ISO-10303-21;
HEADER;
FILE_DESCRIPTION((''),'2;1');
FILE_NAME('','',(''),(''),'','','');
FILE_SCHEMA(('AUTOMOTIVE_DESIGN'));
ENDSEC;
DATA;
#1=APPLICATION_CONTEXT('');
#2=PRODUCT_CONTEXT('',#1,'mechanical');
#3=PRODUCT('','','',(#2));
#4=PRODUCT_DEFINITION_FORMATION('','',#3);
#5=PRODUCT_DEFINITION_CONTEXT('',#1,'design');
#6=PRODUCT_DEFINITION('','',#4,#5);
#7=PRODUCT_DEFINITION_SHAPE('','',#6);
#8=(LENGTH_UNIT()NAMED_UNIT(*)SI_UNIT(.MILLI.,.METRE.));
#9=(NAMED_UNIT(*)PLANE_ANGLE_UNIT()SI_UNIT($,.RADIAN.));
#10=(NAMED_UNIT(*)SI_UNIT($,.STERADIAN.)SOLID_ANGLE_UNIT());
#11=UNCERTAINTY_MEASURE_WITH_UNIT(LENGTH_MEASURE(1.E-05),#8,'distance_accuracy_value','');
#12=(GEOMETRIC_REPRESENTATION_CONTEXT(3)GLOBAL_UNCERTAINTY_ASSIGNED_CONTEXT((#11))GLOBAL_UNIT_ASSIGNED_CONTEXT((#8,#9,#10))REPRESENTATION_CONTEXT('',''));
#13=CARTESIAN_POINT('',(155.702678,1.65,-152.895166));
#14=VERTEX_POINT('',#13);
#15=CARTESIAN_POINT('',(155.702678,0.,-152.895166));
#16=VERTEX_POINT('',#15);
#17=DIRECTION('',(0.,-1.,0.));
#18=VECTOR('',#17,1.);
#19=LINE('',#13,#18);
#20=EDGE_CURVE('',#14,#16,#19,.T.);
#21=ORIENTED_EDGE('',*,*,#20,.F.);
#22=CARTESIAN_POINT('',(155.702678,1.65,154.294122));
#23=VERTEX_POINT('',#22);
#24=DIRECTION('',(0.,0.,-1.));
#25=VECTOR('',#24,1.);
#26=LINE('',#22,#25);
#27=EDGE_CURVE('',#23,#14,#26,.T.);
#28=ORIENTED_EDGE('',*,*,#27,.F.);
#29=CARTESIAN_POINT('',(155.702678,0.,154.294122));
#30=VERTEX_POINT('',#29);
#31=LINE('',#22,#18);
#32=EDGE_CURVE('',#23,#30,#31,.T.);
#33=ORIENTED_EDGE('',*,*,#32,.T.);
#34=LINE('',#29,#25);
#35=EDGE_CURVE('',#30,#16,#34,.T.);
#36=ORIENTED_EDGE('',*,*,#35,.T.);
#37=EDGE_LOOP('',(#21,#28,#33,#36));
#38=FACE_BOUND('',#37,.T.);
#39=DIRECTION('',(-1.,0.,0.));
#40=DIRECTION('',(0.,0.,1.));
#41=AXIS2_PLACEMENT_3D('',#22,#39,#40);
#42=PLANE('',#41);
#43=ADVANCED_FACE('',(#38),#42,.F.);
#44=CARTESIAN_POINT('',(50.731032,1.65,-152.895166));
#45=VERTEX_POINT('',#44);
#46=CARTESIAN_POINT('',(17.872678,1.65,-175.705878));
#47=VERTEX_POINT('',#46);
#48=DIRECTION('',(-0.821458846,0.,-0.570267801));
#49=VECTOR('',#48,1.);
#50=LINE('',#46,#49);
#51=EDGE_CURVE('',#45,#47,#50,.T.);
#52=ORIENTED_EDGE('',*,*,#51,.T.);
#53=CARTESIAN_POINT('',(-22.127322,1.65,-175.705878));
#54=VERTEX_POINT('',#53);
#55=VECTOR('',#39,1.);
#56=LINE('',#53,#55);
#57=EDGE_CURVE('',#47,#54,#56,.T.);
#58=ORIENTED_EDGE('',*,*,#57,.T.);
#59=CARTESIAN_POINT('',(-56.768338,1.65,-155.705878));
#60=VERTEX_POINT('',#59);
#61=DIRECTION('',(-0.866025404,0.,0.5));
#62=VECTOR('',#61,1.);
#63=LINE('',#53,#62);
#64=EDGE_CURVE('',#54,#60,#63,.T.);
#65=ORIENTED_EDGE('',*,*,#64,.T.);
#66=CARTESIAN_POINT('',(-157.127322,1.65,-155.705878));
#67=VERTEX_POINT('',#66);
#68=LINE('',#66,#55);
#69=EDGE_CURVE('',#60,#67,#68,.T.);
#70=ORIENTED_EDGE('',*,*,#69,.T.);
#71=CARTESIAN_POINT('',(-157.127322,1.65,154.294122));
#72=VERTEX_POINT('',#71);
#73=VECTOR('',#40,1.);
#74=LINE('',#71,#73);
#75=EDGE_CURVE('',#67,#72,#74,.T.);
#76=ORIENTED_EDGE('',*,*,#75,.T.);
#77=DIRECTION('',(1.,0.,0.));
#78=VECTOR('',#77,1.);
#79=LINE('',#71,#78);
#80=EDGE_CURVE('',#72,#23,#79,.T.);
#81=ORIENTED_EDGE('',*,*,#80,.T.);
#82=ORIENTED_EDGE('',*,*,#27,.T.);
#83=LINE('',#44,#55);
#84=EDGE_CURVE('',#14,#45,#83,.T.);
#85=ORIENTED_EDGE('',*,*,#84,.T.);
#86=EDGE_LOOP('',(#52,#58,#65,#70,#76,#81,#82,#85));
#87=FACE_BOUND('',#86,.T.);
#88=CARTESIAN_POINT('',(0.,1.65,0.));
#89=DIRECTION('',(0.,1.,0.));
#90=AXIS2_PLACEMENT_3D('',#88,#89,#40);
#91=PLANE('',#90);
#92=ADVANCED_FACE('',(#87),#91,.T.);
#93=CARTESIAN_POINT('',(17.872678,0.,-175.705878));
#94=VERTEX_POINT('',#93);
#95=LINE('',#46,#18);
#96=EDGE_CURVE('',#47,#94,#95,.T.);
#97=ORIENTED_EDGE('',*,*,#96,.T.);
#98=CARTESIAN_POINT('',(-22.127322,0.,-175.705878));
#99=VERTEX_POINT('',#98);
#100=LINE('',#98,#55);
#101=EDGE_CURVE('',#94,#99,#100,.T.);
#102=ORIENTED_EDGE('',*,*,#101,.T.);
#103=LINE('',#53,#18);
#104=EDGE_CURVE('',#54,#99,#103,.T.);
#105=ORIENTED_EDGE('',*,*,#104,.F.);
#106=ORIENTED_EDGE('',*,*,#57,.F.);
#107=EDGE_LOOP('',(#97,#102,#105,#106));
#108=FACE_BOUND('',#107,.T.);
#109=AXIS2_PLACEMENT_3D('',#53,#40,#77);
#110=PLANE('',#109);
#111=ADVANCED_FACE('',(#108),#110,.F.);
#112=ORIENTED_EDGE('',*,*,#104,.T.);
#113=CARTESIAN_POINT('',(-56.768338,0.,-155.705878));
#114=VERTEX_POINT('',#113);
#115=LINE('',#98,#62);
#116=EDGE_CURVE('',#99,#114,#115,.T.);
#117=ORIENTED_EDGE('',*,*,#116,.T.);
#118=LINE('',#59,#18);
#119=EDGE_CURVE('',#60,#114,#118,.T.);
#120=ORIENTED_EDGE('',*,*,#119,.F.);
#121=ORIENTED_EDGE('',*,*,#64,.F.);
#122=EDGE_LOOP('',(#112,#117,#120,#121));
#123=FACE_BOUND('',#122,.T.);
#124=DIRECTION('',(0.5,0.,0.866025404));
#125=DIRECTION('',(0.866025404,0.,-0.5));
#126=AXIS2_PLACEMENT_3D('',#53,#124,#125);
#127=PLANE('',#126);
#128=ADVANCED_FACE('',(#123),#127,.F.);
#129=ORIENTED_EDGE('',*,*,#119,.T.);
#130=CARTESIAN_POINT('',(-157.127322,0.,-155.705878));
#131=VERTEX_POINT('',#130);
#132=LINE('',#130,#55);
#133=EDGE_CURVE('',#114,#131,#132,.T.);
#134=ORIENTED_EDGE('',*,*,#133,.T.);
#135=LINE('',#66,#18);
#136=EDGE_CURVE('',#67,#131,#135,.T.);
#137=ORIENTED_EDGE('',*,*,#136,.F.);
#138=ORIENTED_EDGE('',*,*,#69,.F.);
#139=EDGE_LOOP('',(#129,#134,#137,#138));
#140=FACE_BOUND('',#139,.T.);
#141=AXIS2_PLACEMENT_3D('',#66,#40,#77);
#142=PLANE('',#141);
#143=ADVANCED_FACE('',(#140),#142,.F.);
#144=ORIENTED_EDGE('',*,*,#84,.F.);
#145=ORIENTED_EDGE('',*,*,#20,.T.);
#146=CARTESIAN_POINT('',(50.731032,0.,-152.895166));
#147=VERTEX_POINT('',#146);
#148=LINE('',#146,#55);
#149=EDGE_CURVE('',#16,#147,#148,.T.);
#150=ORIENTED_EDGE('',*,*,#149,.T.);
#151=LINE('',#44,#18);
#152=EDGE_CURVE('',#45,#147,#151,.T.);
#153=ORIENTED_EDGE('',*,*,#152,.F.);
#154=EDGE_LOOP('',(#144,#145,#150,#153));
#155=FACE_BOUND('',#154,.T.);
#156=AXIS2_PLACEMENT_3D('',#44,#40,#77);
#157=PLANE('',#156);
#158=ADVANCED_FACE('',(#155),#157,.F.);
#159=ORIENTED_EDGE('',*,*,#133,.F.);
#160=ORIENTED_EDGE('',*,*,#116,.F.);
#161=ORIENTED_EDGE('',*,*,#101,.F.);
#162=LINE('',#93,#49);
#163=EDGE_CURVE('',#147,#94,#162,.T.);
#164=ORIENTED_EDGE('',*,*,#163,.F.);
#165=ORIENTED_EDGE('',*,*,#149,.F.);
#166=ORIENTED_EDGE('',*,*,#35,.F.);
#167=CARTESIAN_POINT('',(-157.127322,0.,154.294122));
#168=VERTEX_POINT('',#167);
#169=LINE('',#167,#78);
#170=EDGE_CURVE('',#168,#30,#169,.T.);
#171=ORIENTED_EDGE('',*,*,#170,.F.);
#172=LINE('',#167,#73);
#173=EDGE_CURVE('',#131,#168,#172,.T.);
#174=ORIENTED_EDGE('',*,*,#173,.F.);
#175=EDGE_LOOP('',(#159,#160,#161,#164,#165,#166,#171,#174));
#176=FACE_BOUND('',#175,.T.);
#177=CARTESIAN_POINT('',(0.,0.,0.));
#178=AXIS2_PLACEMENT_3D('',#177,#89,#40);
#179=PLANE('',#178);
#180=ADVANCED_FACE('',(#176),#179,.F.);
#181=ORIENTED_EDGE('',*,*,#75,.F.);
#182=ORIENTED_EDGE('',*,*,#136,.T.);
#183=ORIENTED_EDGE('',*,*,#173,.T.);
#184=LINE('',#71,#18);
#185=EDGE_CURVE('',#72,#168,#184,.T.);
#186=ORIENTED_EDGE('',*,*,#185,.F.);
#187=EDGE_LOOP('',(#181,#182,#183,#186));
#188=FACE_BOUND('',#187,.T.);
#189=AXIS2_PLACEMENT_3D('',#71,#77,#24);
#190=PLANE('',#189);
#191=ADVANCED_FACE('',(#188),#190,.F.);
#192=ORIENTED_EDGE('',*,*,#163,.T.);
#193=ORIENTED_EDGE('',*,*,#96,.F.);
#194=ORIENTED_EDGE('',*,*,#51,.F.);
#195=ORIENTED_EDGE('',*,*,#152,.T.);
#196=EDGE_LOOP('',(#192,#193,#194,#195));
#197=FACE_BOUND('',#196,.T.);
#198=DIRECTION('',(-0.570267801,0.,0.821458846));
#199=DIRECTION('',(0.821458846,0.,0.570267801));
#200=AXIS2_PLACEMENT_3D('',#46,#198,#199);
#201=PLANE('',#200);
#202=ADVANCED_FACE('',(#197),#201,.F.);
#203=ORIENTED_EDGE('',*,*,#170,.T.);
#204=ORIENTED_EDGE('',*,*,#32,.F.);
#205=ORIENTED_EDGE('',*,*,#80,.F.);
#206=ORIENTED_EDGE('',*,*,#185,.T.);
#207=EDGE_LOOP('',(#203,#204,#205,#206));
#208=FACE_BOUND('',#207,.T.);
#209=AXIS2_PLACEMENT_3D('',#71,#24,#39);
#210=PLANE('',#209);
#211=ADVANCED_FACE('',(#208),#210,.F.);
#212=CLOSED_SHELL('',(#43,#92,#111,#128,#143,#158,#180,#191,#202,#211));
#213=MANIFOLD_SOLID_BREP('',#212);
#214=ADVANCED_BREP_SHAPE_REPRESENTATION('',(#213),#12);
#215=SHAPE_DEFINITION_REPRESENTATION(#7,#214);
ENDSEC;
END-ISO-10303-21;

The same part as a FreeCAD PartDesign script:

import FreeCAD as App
import Part
import Sketcher

V = App.Vector
Q = App.Units.Quantity

doc = App.newDocument("Part")
params = doc.addObject("Spreadsheet::Sheet", "Params")
for row, (alias, value) in enumerate([
    ("sketch1_width", "40 mm"),
    ("sketch1_height", "310 mm"),
    ("sketch1_length", "40 mm"),
    ("sketch1_width2", "312.83 mm"),
    ("pad1_length", "1.65 mm"),
], start=1):
    params.set(f"A{row}", alias)
    params.set(f"B{row}", "=" + value)
    params.setAlias(f"B{row}", alias)

body = doc.addObject("PartDesign::Body", "Body")

# Sketch on XZ plane
sketch1 = body.newObject("Sketcher::SketchObject", "Sketch")
sketch1.AttachmentSupport = (doc.getObject("XZ_Plane"), [""])
sketch1.MapMode = "FlatFace"
sketch1.addGeometry(Part.LineSegment(V(18, -176, 0), V(-22, -176, 0)), False)
sketch1.addGeometry(Part.LineSegment(V(-22, -176, 0), V(-57, -156, 0)), False)
sketch1.addGeometry(Part.LineSegment(V(-57, -156, 0), V(-157, -156, 0)), False)
sketch1.addGeometry(Part.LineSegment(V(-157, -156, 0), V(-157, 154, 0)), False)
sketch1.addGeometry(Part.LineSegment(V(-157, 154, 0), V(156, 154, 0)), False)
sketch1.addGeometry(Part.LineSegment(V(156, 154, 0), V(156, -153, 0)), False)
sketch1.addGeometry(Part.LineSegment(V(156, -153, 0), V(51, -153, 0)), False)
sketch1.addGeometry(Part.LineSegment(V(51, -153, 0), V(18, -176, 0)), False)
sketch1.addConstraint(Sketcher.Constraint("Coincident", 0, 2, 1, 1))
sketch1.addConstraint(Sketcher.Constraint("Coincident", 1, 2, 2, 1))
sketch1.addConstraint(Sketcher.Constraint("Coincident", 2, 2, 3, 1))
sketch1.addConstraint(Sketcher.Constraint("Coincident", 3, 2, 4, 1))
sketch1.addConstraint(Sketcher.Constraint("Coincident", 4, 2, 5, 1))
sketch1.addConstraint(Sketcher.Constraint("Coincident", 5, 2, 6, 1))
sketch1.addConstraint(Sketcher.Constraint("Coincident", 6, 2, 7, 1))
sketch1.addConstraint(Sketcher.Constraint("Coincident", 7, 2, 0, 1))
sketch1.addConstraint(Sketcher.Constraint("Horizontal", 0))
sketch1.addConstraint(Sketcher.Constraint("Horizontal", 2))
sketch1.addConstraint(Sketcher.Constraint("Vertical", 3))
sketch1.addConstraint(Sketcher.Constraint("Horizontal", 4))
sketch1.addConstraint(Sketcher.Constraint("Vertical", 5))
sketch1.addConstraint(Sketcher.Constraint("Horizontal", 6))
sketch1.addConstraint(Sketcher.Constraint("Equal", 1, 7))
sketch1.addConstraint(Sketcher.Constraint("DistanceX", 0, 2, 0, 1, Q("40 mm")))
sketch1.addConstraint(Sketcher.Constraint("DistanceY", 3, 1, 3, 2, Q("310 mm")))
sketch1.addConstraint(Sketcher.Constraint("Angle", 1, Q("150 deg")))
sketch1.addConstraint(Sketcher.Constraint("Distance", 1, Q("40 mm")))
sketch1.addConstraint(Sketcher.Constraint("DistanceX", 2, 2, 0, 2, Q("135 mm")))
sketch1.addConstraint(Sketcher.Constraint("DistanceX", 4, 1, 4, 2, Q("312.83 mm")))
sketch1.addConstraint(Sketcher.Constraint("DistanceX", 6, 2, 6, 1, Q("104.971646 mm")))
sketch1.addConstraint(Sketcher.Constraint("DistanceY", 0, 2, -1, 1, Q("175.705878 mm")))
sketch1.addConstraint(Sketcher.Constraint("DistanceX", 1, 2, -1, 1, Q("56.768338 mm")))
sketch1.setExpression("Constraints[15]", "Params.sketch1_width")
sketch1.setExpression("Constraints[16]", "Params.sketch1_height")
sketch1.setExpression("Constraints[18]", "Params.sketch1_length")
sketch1.setExpression("Constraints[20]", "Params.sketch1_width2")
pad1 = body.newObject("PartDesign::Pad", "Pad")
pad1.Profile = sketch1
pad1.setExpression("Length", "Params.pad1_length")
pad1.Reversed = True

doc.recompute()
